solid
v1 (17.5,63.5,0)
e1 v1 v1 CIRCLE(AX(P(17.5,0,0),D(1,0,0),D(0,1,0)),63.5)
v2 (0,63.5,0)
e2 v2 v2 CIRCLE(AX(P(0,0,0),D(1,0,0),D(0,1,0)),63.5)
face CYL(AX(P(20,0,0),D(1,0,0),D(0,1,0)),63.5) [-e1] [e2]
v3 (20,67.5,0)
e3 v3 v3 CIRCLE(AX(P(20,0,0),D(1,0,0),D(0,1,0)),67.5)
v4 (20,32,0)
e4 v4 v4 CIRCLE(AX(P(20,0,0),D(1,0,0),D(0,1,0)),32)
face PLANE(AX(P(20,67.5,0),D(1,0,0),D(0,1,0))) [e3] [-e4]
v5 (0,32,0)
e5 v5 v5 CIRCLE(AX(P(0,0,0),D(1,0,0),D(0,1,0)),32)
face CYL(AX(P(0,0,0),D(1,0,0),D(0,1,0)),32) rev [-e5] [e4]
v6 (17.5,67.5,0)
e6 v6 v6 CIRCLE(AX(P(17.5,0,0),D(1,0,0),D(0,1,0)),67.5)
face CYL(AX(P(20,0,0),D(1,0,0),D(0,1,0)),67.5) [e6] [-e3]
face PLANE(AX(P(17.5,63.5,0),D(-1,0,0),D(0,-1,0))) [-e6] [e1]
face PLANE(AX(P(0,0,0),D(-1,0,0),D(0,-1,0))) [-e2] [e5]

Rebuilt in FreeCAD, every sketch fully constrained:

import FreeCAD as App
import Part
import Sketcher
from FreeCAD import Vector
Q = App.Units.Quantity


def add_polygon(sketch, points):
    """Adds a closed chain of lines whose ends are joined by coincident constraints."""
    first, n = sketch.GeometryCount, len(points)
    for a, b in zip(points, points[1:] + points[:1]):
        sketch.addGeometry(Part.LineSegment(App.Vector(*a, 0), App.Vector(*b, 0)), False)
    for i in range(n):
        sketch.addConstraint(Sketcher.Constraint("Coincident", first + i, 2, first + (i + 1) % n, 1))

doc = App.newDocument("Part")
body = doc.addObject("PartDesign::Body", "Body")

# Sketch on XY plane
sketch1 = body.newObject("Sketcher::SketchObject", "Sketch")
sketch1.AttachmentSupport = (doc.getObject("XY_Plane"), [""])
sketch1.MapMode = "FlatFace"
add_polygon(sketch1, [(0, 63.5), (0, 0), (20, 0), (20, 67.5), (17.5, 67.5), (17.5, 63.5)])  # lines 0-5
sketch1.addConstraint([
    Sketcher.Constraint("Vertical", 0),
    Sketcher.Constraint("Horizontal", 1),
    Sketcher.Constraint("Vertical", 2),
    Sketcher.Constraint("Horizontal", 3),
    Sketcher.Constraint("Vertical", 4),
    Sketcher.Constraint("Horizontal", 5),
    Sketcher.Constraint("Coincident", 0, 2, -1, 1),
    Sketcher.Constraint("DistanceX", 1, 1, 1, 2, Q("20 mm")),
    Sketcher.Constraint("DistanceY", 4, 2, 4, 1, Q("4 mm")),
    Sketcher.Constraint("DistanceX", 3, 2, 3, 1, Q("2.5 mm")),
    Sketcher.Constraint("DistanceY", 0, 2, 0, 1, Q("63.5 mm")),
])
revolution = body.newObject("PartDesign::Revolution", "Revolution")
revolution.Profile = sketch1
revolution.ReferenceAxis = (sketch1, ["H_Axis"])
revolution.Angle = 360

# Sketch on YZ plane
sketch2 = body.newObject("Sketcher::SketchObject", "Sketch001")
sketch2.AttachmentSupport = (doc.getObject("YZ_Plane"), [""])
sketch2.MapMode = "FlatFace"
sketch2.AttachmentOffset = App.Placement(Vector(0, 0, 20), App.Rotation())
sketch2.addGeometry(Part.Circle(Vector(0, 0, 0), Vector(0, 0, 1), 32), False)
sketch2.addConstraint([
    Sketcher.Constraint("Coincident", 0, 3, -1, 1),
    Sketcher.Constraint("Diameter", 0, Q("64 mm")),
])
pocket1 = body.newObject("PartDesign::Pocket", "Pocket")
pocket1.Profile = sketch2
pocket1.Type = "ThroughAll"

doc.recompute()
